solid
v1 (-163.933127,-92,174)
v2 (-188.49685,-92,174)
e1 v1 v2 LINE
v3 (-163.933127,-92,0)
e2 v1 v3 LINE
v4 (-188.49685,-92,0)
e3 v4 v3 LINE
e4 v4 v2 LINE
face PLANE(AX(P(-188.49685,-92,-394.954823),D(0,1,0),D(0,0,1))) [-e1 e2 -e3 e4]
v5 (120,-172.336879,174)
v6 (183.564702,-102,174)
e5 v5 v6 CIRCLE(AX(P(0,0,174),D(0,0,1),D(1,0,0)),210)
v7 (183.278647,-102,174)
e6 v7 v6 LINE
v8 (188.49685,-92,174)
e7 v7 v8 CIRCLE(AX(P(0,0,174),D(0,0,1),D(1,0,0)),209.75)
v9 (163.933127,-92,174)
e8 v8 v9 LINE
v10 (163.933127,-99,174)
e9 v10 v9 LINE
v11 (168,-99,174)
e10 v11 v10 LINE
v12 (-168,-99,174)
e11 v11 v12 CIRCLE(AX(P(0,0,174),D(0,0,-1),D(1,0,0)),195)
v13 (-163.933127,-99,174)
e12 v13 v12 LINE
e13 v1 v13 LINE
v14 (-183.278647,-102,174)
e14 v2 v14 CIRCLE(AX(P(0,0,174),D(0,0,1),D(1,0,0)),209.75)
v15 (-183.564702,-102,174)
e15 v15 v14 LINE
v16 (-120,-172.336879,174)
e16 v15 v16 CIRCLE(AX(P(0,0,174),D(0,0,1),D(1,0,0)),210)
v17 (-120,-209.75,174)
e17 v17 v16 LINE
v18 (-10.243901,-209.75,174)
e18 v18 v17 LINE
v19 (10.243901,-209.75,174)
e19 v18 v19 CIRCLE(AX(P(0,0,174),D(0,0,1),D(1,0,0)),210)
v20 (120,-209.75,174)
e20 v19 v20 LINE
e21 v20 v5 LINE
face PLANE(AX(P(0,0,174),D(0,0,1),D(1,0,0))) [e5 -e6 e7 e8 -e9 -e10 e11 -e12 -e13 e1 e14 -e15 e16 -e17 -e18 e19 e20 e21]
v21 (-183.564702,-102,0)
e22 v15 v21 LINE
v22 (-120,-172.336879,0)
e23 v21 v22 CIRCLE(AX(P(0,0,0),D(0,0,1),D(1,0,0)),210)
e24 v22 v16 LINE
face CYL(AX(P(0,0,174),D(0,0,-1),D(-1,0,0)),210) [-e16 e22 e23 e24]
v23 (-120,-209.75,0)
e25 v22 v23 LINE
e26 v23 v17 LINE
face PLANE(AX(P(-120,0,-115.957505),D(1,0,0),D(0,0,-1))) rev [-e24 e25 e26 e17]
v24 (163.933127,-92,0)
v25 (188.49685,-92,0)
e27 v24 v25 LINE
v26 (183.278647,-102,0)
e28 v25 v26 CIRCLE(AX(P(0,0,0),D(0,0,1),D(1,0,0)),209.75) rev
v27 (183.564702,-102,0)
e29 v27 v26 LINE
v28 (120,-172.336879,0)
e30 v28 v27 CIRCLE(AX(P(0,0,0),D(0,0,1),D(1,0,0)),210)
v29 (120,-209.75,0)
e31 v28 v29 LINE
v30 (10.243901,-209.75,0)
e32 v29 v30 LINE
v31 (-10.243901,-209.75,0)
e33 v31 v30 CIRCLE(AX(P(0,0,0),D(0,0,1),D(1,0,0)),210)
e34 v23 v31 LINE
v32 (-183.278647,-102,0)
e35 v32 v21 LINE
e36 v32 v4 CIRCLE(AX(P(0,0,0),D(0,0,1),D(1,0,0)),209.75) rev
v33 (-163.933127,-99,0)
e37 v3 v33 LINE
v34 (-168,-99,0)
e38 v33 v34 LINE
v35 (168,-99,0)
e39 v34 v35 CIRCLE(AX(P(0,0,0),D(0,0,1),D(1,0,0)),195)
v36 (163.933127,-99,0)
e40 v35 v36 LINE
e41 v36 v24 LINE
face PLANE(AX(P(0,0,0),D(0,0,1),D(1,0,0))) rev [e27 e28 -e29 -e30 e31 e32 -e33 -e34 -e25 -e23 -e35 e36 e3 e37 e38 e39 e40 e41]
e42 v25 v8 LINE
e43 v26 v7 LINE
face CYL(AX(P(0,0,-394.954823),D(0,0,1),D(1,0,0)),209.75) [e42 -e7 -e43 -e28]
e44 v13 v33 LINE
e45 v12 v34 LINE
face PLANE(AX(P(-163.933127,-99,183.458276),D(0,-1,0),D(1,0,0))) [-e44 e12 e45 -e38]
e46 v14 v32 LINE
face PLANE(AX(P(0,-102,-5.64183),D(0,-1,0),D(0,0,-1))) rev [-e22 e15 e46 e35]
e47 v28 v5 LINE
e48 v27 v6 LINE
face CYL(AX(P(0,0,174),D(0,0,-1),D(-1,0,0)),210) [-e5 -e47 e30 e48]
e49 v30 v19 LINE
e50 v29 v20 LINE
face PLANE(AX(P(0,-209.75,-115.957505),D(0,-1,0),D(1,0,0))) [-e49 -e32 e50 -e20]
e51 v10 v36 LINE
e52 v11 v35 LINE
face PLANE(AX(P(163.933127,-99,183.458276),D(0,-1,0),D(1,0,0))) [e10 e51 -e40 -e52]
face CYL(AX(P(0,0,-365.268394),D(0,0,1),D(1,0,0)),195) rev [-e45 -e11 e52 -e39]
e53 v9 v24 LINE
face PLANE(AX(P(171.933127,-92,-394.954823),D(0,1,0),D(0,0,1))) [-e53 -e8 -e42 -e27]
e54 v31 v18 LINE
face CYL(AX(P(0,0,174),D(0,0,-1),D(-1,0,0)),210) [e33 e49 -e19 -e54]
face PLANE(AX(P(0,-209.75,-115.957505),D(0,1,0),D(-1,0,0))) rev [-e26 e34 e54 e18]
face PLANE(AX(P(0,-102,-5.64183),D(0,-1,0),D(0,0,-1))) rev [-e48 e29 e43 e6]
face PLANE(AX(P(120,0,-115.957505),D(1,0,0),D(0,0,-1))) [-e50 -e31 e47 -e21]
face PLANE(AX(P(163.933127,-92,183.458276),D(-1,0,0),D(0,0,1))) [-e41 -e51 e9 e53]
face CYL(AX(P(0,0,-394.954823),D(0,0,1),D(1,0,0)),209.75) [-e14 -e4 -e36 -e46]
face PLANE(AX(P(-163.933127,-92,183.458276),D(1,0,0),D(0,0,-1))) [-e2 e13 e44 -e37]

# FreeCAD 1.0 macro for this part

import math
import FreeCAD as App
import Part
import Sketcher

doc = App.newDocument("Part")
body = doc.addObject("PartDesign::Body", "Body")

sketch1 = body.newObject("Sketcher::SketchObject", "Sketch")
sketch1.AttachmentSupport = (doc.getObject("XY_Plane"), [""])
sketch1.MapMode = "FlatFace"
sketch1.addGeometry([
    Part.Circle(App.Vector(0, 0, 0), App.Vector(0, 0, 1), 210),
    Part.Circle(App.Vector(0, 0, 0), App.Vector(0, 0, 1), 203),
], False)
sketch1.addConstraint([
    Sketcher.Constraint("Coincident", 0, 3, -1, 1),
    Sketcher.Constraint("Coincident", 1, 3, -1, 1),
    Sketcher.Constraint("Diameter", 0, 420.0),
    Sketcher.Constraint("Diameter", 1, 406.0),
])
pad1 = body.newObject("PartDesign::Pad", "Pad")
pad1.Profile = sketch1
pad1.Length = 174

sketch2 = body.newObject("Sketcher::SketchObject", "Sketch001")
sketch2.AttachmentSupport = (doc.getObject("XY_Plane"), [""])
sketch2.MapMode = "FlatFace"
sketch2.addGeometry([
    Part.LineSegment(App.Vector(-170.7, -102, 0), App.Vector(-175.5, -102, 0)),
    Part.ArcOfCircle(Part.Circle(App.Vector(0, 0, 0), App.Vector(0, 0, 1), 203), math.radians(-149.84), math.radians(-148.85)),
    Part.LineSegment(App.Vector(-173.7, -105, 0), App.Vector(-170.7, -105, 0)),
    Part.LineSegment(App.Vector(-170.7, -105, 0), App.Vector(-170.7, -102, 0)),
    Part.ArcOfCircle(Part.Circle(App.Vector(0, 0, 0), App.Vector(0, 0, 1), 203), math.radians(-31.15), math.radians(-30.16)),
    Part.LineSegment(App.Vector(175.5, -102, 0), App.Vector(170.7, -102, 0)),
    Part.LineSegment(App.Vector(170.7, -102, 0), App.Vector(170.7, -105, 0)),
    Part.LineSegment(App.Vector(170.7, -105, 0), App.Vector(173.7, -105, 0)),
], False)
sketch2.addConstraint([
    Sketcher.Constraint("Coincident", 0, 2, 1, 1),
    Sketcher.Constraint("Coincident", 1, 2, 2, 1),
    Sketcher.Constraint("Coincident", 2, 2, 3, 1),
    Sketcher.Constraint("Coincident", 3, 2, 0, 1),
    Sketcher.Constraint("Coincident", 4, 2, 5, 1),
    Sketcher.Constraint("Coincident", 5, 2, 6, 1),
    Sketcher.Constraint("Coincident", 6, 2, 7, 1),
    Sketcher.Constraint("Coincident", 7, 2, 4, 1),
    Sketcher.Constraint("Horizontal", 0),
    Sketcher.Constraint("Horizontal", 2),
    Sketcher.Constraint("Vertical", 3),
    Sketcher.Constraint("Horizontal", 5),
    Sketcher.Constraint("Vertical", 6),
    Sketcher.Constraint("Horizontal", 7),
    Sketcher.Constraint("Coincident", 1, 3, -1, 1),
    Sketcher.Constraint("Coincident", 4, 3, -1, 1),
    Sketcher.Constraint("Equal", 1, 4),
    Sketcher.Constraint("Symmetric", 3, 2, 5, 2, -2),
    Sketcher.Constraint("Horizontal", 2, 2, 6, 2),
    Sketcher.Constraint("Equal", 7, 3),
    Sketcher.Constraint("DistanceX", 2, 1, 2, 2, 3.0),
    Sketcher.Constraint("DistanceY", 0, 2, -1, 1, 102.0),
    Sketcher.Constraint("Radius", 1, 202.999996),
])
pad2 = body.newObject("PartDesign::Pad", "Pad001")
pad2.Profile = sketch2
pad2.Length = 174

sketch3 = body.newObject("Sketcher::SketchObject", "Sketch002")
sketch3.AttachmentSupport = (doc.getObject("XY_Plane"), [""])
sketch3.MapMode = "FlatFace"
sketch3.AttachmentOffset = App.Placement(App.Vector(0, 0, 174), App.Rotation())
sketch3.addGeometry([
    Part.LineSegment(App.Vector(238, -102, 0), App.Vector(254, 272, 0)),
    Part.LineSegment(App.Vector(254, 272, 0), App.Vector(-335, 222, 0)),
    Part.LineSegment(App.Vector(-335, 222, 0), App.Vector(-307, -102, 0)),
    Part.LineSegment(App.Vector(-307, -102, 0), App.Vector(238, -102, 0)),
], False)
sketch3.addConstraint([
    Sketcher.Constraint("Coincident", 0, 2, 1, 1),
    Sketcher.Constraint("Coincident", 1, 2, 2, 1),
    Sketcher.Constraint("Coincident", 2, 2, 3, 1),
    Sketcher.Constraint("Coincident", 3, 2, 0, 1),
    Sketcher.Constraint("Horizontal", 3),
    Sketcher.Constraint("Perpendicular", 1, 2),
    Sketcher.Constraint("DistanceY", 2, 2, -1, 1, 102.0),
    Sketcher.Constraint("DistanceX", 3, 1, 3, 2, 545.164209),
    Sketcher.Constraint("Distance", 0, 374.634368),
    Sketcher.Constraint("Distance", 1, 591.059869),
    Sketcher.Constraint("Distance", 2, 325.036892),
    Sketcher.Constraint("DistanceX", -1, 1, 0, 2, 254.33417),
])
pocket1 = body.newObject("PartDesign::Pocket", "Pocket")
pocket1.Profile = sketch3
pocket1.Length = 654

sketch4 = body.newObject("Sketcher::SketchObject", "Sketch003")
sketch4.AttachmentSupport = (doc.getObject("XY_Plane"), [""])
sketch4.MapMode = "FlatFace"
sketch4.addGeometry([
    Part.LineSegment(App.Vector(-120, -210, 0), App.Vector(-10, -210, 0)),
    Part.ArcOfCircle(Part.Circle(App.Vector(0, 0, 0), App.Vector(0, 0, 1), 210), math.radians(-125), math.radians(-93)),
    Part.LineSegment(App.Vector(-120, -172, 0), App.Vector(-120, -210, 0)),
    Part.ArcOfCircle(Part.Circle(App.Vector(0, 0, 0), App.Vector(0, 0, 1), 210), math.radians(-87), math.radians(-55)),
    Part.LineSegment(App.Vector(10, -210, 0), App.Vector(120, -210, 0)),
    Part.LineSegment(App.Vector(120, -210, 0), App.Vector(120, -172, 0)),
], False)
sketch4.addConstraint([
    Sketcher.Constraint("Coincident", 0, 2, 1, 2),
    Sketcher.Constraint("Coincident", 1, 1, 2, 1),
    Sketcher.Constraint("Coincident", 2, 2, 0, 1),
    Sketcher.Constraint("Coincident", 3, 1, 4, 1),
    Sketcher.Constraint("Coincident", 4, 2, 5, 1),
    Sketcher.Constraint("Coincident", 5, 2, 3, 2),
    Sketcher.Constraint("Horizontal", 0),
    Sketcher.Constraint("Vertical", 2),
    Sketcher.Constraint("Horizontal", 4),
    Sketcher.Constraint("Vertical", 5),
    Sketcher.Constraint("Coincident", 1, 3, -1, 1),
    Sketcher.Constraint("Coincident", 3, 3, -1, 1),
    Sketcher.Constraint("Equal", 1, 3),
    Sketcher.Constraint("Symmetric", 2, 2, 4, 2, -2),
    Sketcher.Constraint("Radius", 1, 210.0),
    Sketcher.Constraint("DistanceX", 1, 1, -1, 1, 120.0),
    Sketcher.Constraint("DistanceY", 0, 2, -1, 1, 209.75),
])
pad3 = body.newObject("PartDesign::Pad", "Pad002")
pad3.Profile = sketch4
pad3.Length = 174

sketch5 = body.newObject("Sketcher::SketchObject", "Sketch004")
sketch5.AttachmentSupport = (doc.getObject("XY_Plane"), [""])
sketch5.MapMode = "FlatFace"
sketch5.addGeometry([
    Part.LineSegment(App.Vector(-166, -102, 0), App.Vector(-176, -102, 0)),
    Part.ArcOfCircle(Part.Circle(App.Vector(0, 0, 0), App.Vector(0, 0, 1), 203), math.radians(-150), math.radians(-30)),
    Part.LineSegment(App.Vector(176, -102, 0), App.Vector(166, -102, 0)),
    Part.ArcOfCircle(Part.Circle(App.Vector(0, 0, 0), App.Vector(0, 0, 1), 195), math.radians(-148), math.radians(-32)),
], False)
sketch5.addConstraint([
    Sketcher.Constraint("Coincident", 0, 2, 1, 1),
    Sketcher.Constraint("Coincident", 1, 2, 2, 1),
    Sketcher.Constraint("Coincident", 2, 2, 3, 2),
    Sketcher.Constraint("Coincident", 3, 1, 0, 1),
    Sketcher.Constraint("Horizontal", 0),
    Sketcher.Constraint("Horizontal", 2),
    Sketcher.Constraint("Coincident", 1, 3, -1, 1),
    Sketcher.Constraint("Coincident", 3, 3, -1, 1),
    Sketcher.Constraint("Horizontal", 0, 2, 1, 2),
    Sketcher.Constraint("Radius", 1, 203.0),
    Sketcher.Constraint("Radius", 3, 195.0),
    Sketcher.Constraint("DistanceY", 0, 2, -1, 1, 102.0),
])
pad4 = body.newObject("PartDesign::Pad", "Pad003")
pad4.Profile = sketch5
pad4.Length = 174

sketch6 = body.newObject("Sketcher::SketchObject", "Sketch005")
sketch6.AttachmentSupport = (doc.getObject("XY_Plane"), [""])
sketch6.MapMode = "FlatFace"
sketch6.addGeometry([
    Part.LineSegment(App.Vector(-166.9, -95, 0), App.Vector(-166.9, -92, 0)),
    Part.LineSegment(App.Vector(-166.9, -92, 0), App.Vector(-188.5, -92, 0)),
    Part.ArcOfCircle(Part.Circle(App.Vector(0, 0, 0), App.Vector(0, 0, 1), 209.8), math.radians(-154), math.radians(-26)),
    Part.LineSegment(App.Vector(188.5, -92, 0), App.Vector(166.9, -92, 0)),
    Part.LineSegment(App.Vector(166.9, -92, 0), App.Vector(166.9, -95, 0)),
    Part.LineSegment(App.Vector(166.9, -95, 0), App.Vector(170.3, -95, 0)),
    Part.ArcOfCircle(Part.Circle(App.Vector(0, 0, 0), App.Vector(0, 0, 1), 195), math.radians(-151), math.radians(-29)),
    Part.LineSegment(App.Vector(-170.3, -95, 0), App.Vector(-166.9, -95, 0)),
], False)
sketch6.addConstraint([
    Sketcher.Constraint("Coincident", 0, 2, 1, 1),
    Sketcher.Constraint("Coincident", 1, 2, 2, 1),
    Sketcher.Constraint("Coincident", 2, 2, 3, 1),
    Sketcher.Constraint("Coincident", 3, 2, 4, 1),
    Sketcher.Constraint("Coincident", 4, 2, 5, 1),
    Sketcher.Constraint("Coincident", 5, 2, 6, 2),
    Sketcher.Constraint("Coincident", 6, 1, 7, 1),
    Sketcher.Constraint("Coincident", 7, 2, 0, 1),
    Sketcher.Constraint("Vertical", 0),
    Sketcher.Constraint("Horizontal", 1),
    Sketcher.Constraint("Horizontal", 3),
    Sketcher.Constraint("Vertical", 4),
    Sketcher.Constraint("Horizontal", 5),
    Sketcher.Constraint("Horizontal", 7),
    Sketcher.Constraint("Coincident", 2, 3, -1, 1),
    Sketcher.Constraint("Coincident", 6, 3, -1, 1),
    Sketcher.Constraint("Symmetric", 0, 2, 3, 2, -2),
    Sketcher.Constraint("Horizontal", 5, 2, 6, 1),
    Sketcher.Constraint("Radius", 6, 195.0),
    Sketcher.Constraint("DistanceY", 0, 1, 0, 2, 3.0),
    Sketcher.Constraint("Radius", 2, 209.75),
    Sketcher.Constraint("DistanceY", 0, 2, -1, 1, 92.0),
    Sketcher.Constraint("DistanceX", 1, 2, 1, 1, 21.563724),
])
pad5 = body.newObject("PartDesign::Pad", "Pad004")
pad5.Profile = sketch6
pad5.Length = 174

sketch7 = body.newObject("Sketcher::SketchObject", "Sketch006")
sketch7.AttachmentSupport = (doc.getObject("XY_Plane"), [""])
sketch7.MapMode = "FlatFace"
sketch7.addGeometry([
    Part.LineSegment(App.Vector(-166.9, -92, 0), App.Vector(-163.9, -92, 0)),
    Part.LineSegment(App.Vector(-163.9, -92, 0), App.Vector(-163.9, -99, 0)),
    Part.LineSegment(App.Vector(-163.9, -99, 0), App.Vector(-168, -99, 0)),
    Part.ArcOfCircle(Part.Circle(App.Vector(0, 0, 0), App.Vector(0, 0, 1), 195), math.radians(-150.84), math.radians(-149.49)),
    Part.LineSegment(App.Vector(-170.3, -95, 0), App.Vector(-166.9, -95, 0)),
    Part.LineSegment(App.Vector(-166.9, -95, 0), App.Vector(-166.9, -92, 0)),
    Part.LineSegment(App.Vector(166.9, -95, 0), App.Vector(170.3, -95, 0)),
    Part.ArcOfCircle(Part.Circle(App.Vector(0, 0, 0), App.Vector(0, 0, 1), 195), math.radians(-30.51), math.radians(-29.16)),
    Part.LineSegment(App.Vector(168, -99, 0), App.Vector(163.9, -99, 0)),
    Part.LineSegment(App.Vector(163.9, -99, 0), App.Vector(163.9, -92, 0)),
    Part.LineSegment(App.Vector(163.9, -92, 0), App.Vector(166.9, -92, 0)),
    Part.LineSegment(App.Vector(166.9, -92, 0), App.Vector(166.9, -95, 0)),
], False)
sketch7.addConstraint([
    Sketcher.Constraint("Coincident", 0, 2, 1, 1),
    Sketcher.Constraint("Coincident", 1, 2, 2, 1),
    Sketcher.Constraint("Coincident", 2, 2, 3, 2),
    Sketcher.Constraint("Coincident", 3, 1, 4, 1),
    Sketcher.Constraint("Coincident", 4, 2, 5, 1),
    Sketcher.Constraint("Coincident", 5, 2, 0, 1),
    Sketcher.Constraint("Coincident", 6, 2, 7, 2),
    Sketcher.Constraint("Coincident", 7, 1, 8, 1),
    Sketcher.Constraint("Coincident", 8, 2, 9, 1),
    Sketcher.Constraint("Coincident", 9, 2, 10, 1),
    Sketcher.Constraint("Coincident", 10, 2, 11, 1),
    Sketcher.Constraint("Coincident", 11, 2, 6, 1),
    Sketcher.Constraint("Horizontal", 0),
    Sketcher.Constraint("Vertical", 1),
    Sketcher.Constraint("Horizontal", 2),
    Sketcher.Constraint("Horizontal", 4),
    Sketcher.Constraint("Vertical", 5),
    Sketcher.Constraint("Horizontal", 6),
    Sketcher.Constraint("Horizontal", 8),
    Sketcher.Constraint("Vertical", 9),
    Sketcher.Constraint("Horizontal", 10),
    Sketcher.Constraint("Vertical", 11),
    Sketcher.Constraint("Coincident", 3, 3, -1, 1),
    Sketcher.Constraint("Coincident", 7, 3, -1, 1),
    Sketcher.Constraint("Equal", 3, 7),
    Sketcher.Constraint("Symmetric", 1, 2, 8, 2, -2),
    Sketcher.Constraint("Symmetric", 5, 2, 10, 2, -2),
    Sketcher.Constraint("Horizontal", 4, 2, 6, 2),
    Sketcher.Constraint("Equal", 10, 5),
    Sketcher.Constraint("DistanceX", 0, 1, 0, 2, 3.0),
    Sketcher.Constraint("DistanceY", 1, 2, 1, 1, 7.0),
    Sketcher.Constraint("DistanceY", 0, 2, -1, 1, 92.0),
    Sketcher.Constraint("DistanceX", 2, 2, -1, 1, 168.0),
    Sketcher.Constraint("DistanceX", 2, 2, 2, 1, 4.066873),
])
pad6 = body.newObject("PartDesign::Pad", "Pad005")
pad6.Profile = sketch7
pad6.Length = 174

doc.recompute()
